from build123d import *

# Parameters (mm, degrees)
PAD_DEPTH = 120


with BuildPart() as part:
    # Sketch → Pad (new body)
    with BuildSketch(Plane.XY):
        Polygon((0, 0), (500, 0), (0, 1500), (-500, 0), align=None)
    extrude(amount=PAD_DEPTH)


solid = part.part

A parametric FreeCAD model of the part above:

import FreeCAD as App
import Part
import Sketcher

V = App.Vector

doc = App.newDocument("Part")
body = doc.addObject("PartDesign::Body", "Body")

# Sketch on XY plane
sketch1 = doc.addObject("Sketcher::SketchObject", "Sketch")
body.addObject(sketch1)
sketch1.AttachmentSupport = (doc.XY_Plane, [""])
sketch1.MapMode = "FlatFace"
sketch1.addGeometry(Part.LineSegment(V(500, 0, 0), V(0, 1500, 0)), False)
sketch1.addGeometry(Part.LineSegment(V(0, 1500, 0), V(-500, 0, 0)), False)
sketch1.addGeometry(Part.LineSegment(V(-500, 0, 0), V(500, 0, 0)), False)
sketch1.addConstraint(Sketcher.Constraint("Coincident", 0, 2, 1, 1))
sketch1.addConstraint(Sketcher.Constraint("Coincident", 1, 2, 2, 1))
sketch1.addConstraint(Sketcher.Constraint("Coincident", 2, 2, 0, 1))
sketch1.addConstraint(Sketcher.Constraint("Horizontal", 2))
sketch1.addConstraint(Sketcher.Constraint("Symmetric", 1, 2, 2, 2, -1, 1))
sketch1.addConstraint(Sketcher.Constraint("PointOnObject", 0, 2, -2))
sketch1.addConstraint(Sketcher.Constraint("DistanceX", 2, 1, 2, 2, 1000.0))
sketch1.addConstraint(Sketcher.Constraint("DistanceY", -1, 1, 0, 2, 1500.0))
pad1 = doc.addObject("PartDesign::Pad", "Pad")
body.addObject(pad1)
pad1.Profile = sketch1
pad1.Length = 120

doc.recompute()
